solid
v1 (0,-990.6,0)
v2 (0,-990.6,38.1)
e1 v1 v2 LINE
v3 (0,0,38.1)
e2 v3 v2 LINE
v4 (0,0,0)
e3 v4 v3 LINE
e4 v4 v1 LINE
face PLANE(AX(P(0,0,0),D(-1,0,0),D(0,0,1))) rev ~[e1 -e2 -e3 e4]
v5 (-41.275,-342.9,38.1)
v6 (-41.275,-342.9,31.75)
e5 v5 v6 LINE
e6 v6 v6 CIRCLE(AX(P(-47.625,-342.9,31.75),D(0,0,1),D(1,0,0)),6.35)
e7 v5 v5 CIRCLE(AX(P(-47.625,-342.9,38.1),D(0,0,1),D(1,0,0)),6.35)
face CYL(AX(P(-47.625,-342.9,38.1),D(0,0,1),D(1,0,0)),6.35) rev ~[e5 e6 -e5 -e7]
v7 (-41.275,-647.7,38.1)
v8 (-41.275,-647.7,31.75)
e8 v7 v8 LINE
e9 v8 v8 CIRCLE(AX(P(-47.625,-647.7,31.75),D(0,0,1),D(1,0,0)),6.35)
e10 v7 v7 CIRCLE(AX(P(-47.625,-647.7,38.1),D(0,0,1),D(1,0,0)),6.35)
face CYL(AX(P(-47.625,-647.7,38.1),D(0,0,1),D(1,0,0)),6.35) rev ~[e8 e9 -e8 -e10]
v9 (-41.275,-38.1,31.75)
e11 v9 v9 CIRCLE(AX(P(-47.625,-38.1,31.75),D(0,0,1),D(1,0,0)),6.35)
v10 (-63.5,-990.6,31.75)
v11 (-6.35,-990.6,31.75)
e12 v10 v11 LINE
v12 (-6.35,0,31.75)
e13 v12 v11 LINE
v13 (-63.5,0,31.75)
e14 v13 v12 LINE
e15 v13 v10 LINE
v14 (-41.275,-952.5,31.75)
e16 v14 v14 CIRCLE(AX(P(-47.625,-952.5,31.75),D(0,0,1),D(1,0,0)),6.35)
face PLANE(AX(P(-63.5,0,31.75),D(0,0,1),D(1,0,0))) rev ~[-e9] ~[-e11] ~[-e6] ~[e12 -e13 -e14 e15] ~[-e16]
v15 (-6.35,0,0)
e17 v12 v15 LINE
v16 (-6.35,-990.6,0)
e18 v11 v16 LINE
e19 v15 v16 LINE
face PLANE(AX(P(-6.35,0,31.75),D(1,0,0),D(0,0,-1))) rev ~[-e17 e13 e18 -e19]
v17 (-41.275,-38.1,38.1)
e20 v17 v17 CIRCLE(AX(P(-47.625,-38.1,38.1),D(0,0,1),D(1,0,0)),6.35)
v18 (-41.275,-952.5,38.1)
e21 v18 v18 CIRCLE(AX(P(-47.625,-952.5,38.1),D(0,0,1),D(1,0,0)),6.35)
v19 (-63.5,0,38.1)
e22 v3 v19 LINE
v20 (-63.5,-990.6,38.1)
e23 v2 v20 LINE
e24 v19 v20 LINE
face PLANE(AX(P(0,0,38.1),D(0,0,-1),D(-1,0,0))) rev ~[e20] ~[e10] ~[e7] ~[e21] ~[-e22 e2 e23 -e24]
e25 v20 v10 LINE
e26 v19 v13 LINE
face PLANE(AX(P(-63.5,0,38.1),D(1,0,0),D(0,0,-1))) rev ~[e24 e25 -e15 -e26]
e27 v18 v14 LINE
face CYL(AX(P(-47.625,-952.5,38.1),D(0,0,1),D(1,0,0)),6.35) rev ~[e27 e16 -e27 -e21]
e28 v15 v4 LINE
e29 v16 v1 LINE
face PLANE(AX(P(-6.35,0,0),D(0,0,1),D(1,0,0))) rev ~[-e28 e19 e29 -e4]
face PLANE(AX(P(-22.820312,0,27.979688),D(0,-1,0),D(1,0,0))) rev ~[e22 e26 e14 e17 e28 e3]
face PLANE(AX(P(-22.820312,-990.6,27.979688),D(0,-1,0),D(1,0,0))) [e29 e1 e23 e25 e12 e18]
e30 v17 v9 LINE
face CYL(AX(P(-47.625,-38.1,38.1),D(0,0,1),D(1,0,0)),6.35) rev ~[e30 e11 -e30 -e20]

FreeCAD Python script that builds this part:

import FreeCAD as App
import Part
import Sketcher
Q = App.Units.Quantity


def add_polygon(sketch, points):
    """Adds a closed chain of lines whose ends are joined by coincident constraints."""
    first, n = sketch.GeometryCount, len(points)
    for a, b in zip(points, points[1:] + points[:1]):
        sketch.addGeometry(Part.LineSegment(App.Vector(*a, 0), App.Vector(*b, 0)), False)
    for i in range(n):
        sketch.addConstraint(Sketcher.Constraint("Coincident", first + i, 2, first + (i + 1) % n, 1))

doc = App.newDocument("Part")
body = doc.addObject("PartDesign::Body", "Body")

# Sketch on XZ plane
sketch1 = doc.addObject("Sketcher::SketchObject", "Sketch")
body.addObject(sketch1)
sketch1.AttachmentSupport = (doc.XZ_Plane, [""])
sketch1.MapMode = "FlatFace"
add_polygon(sketch1, [(-6.35, 0), (0, 0), (0, 38.1), (-63.5, 38.1), (-63.5, 31.75), (-6.35, 31.75)])  # lines 0-5
sketch1.addConstraint(Sketcher.Constraint("Horizontal", 0))
sketch1.addConstraint(Sketcher.Constraint("Vertical", 1))
sketch1.addConstraint(Sketcher.Constraint("Horizontal", 2))
sketch1.addConstraint(Sketcher.Constraint("Vertical", 3))
sketch1.addConstraint(Sketcher.Constraint("Horizontal", 4))
sketch1.addConstraint(Sketcher.Constraint("Vertical", 5))
sketch1.addConstraint(Sketcher.Constraint("Coincident", 0, 2, -1, 1))
sketch1.addConstraint(Sketcher.Constraint("Equal", 0, 3))
sketch1.addConstraint(Sketcher.Constraint("DistanceX", 2, 2, 2, 1, Q("2.5 in")))
sketch1.addConstraint(Sketcher.Constraint("DistanceY", 1, 1, 1, 2, Q("1.5 in")))
sketch1.addConstraint(Sketcher.Constraint("DistanceX", 0, 1, 0, 2, Q("0.25 in")))
pad1 = doc.addObject("PartDesign::Pad", "Pad")
body.addObject(pad1)
pad1.Profile = sketch1
pad1.Length = Q("39 in")

# Sketch on XY plane
sketch2 = doc.addObject("Sketcher::SketchObject", "Sketch001")
body.addObject(sketch2)
sketch2.AttachmentSupport = (doc.XY_Plane, [""])
sketch2.MapMode = "FlatFace"
sketch2.AttachmentOffset = App.Placement(App.Vector(0, 0, 1.5 * 25.4), App.Rotation())
sketch2.addGeometry(Part.Circle(App.Vector(-47.625, -952.5, 0), App.Vector(0, 0, 1), 6.35), False)
sketch2.addGeometry(Part.Circle(App.Vector(-47.625, -647.7, 0), App.Vector(0, 0, 1), 6.35), False)
sketch2.addGeometry(Part.Circle(App.Vector(-47.625, -342.9, 0), App.Vector(0, 0, 1), 6.35), False)
sketch2.addGeometry(Part.Circle(App.Vector(-47.625, -38.1, 0), App.Vector(0, 0, 1), 6.35), False)
sketch2.addConstraint(Sketcher.Constraint("Equal", 0, 1))
sketch2.addConstraint(Sketcher.Constraint("Equal", 1, 2))
sketch2.addConstraint(Sketcher.Constraint("Equal", 2, 3))
sketch2.addConstraint(Sketcher.Constraint("Vertical", 0, 3, 1, 3))
sketch2.addConstraint(Sketcher.Constraint("Vertical", 1, 3, 2, 3))
sketch2.addConstraint(Sketcher.Constraint("Vertical", 2, 3, 3, 3))
sketch2.addConstraint(Sketcher.Constraint("Diameter", 0, Q("0.5 in")))
sketch2.addConstraint(Sketcher.Constraint("DistanceY", 0, 3, 1, 3, Q("12 in")))
sketch2.addConstraint(Sketcher.Constraint("DistanceY", 1, 3, 2, 3, Q("12 in")))
sketch2.addConstraint(Sketcher.Constraint("DistanceY", 2, 3, 3, 3, Q("12 in")))
sketch2.addConstraint(Sketcher.Constraint("DistanceY", 0, 3, -1, 1, Q("37.5 in")))
sketch2.addConstraint(Sketcher.Constraint("DistanceX", 0, 3, -1, 1, Q("1.875 in")))
pocket1 = doc.addObject("PartDesign::Pocket", "Pocket")
body.addObject(pocket1)
pocket1.Profile = sketch2
pocket1.Length = Q("1 in")

doc.recompute()
